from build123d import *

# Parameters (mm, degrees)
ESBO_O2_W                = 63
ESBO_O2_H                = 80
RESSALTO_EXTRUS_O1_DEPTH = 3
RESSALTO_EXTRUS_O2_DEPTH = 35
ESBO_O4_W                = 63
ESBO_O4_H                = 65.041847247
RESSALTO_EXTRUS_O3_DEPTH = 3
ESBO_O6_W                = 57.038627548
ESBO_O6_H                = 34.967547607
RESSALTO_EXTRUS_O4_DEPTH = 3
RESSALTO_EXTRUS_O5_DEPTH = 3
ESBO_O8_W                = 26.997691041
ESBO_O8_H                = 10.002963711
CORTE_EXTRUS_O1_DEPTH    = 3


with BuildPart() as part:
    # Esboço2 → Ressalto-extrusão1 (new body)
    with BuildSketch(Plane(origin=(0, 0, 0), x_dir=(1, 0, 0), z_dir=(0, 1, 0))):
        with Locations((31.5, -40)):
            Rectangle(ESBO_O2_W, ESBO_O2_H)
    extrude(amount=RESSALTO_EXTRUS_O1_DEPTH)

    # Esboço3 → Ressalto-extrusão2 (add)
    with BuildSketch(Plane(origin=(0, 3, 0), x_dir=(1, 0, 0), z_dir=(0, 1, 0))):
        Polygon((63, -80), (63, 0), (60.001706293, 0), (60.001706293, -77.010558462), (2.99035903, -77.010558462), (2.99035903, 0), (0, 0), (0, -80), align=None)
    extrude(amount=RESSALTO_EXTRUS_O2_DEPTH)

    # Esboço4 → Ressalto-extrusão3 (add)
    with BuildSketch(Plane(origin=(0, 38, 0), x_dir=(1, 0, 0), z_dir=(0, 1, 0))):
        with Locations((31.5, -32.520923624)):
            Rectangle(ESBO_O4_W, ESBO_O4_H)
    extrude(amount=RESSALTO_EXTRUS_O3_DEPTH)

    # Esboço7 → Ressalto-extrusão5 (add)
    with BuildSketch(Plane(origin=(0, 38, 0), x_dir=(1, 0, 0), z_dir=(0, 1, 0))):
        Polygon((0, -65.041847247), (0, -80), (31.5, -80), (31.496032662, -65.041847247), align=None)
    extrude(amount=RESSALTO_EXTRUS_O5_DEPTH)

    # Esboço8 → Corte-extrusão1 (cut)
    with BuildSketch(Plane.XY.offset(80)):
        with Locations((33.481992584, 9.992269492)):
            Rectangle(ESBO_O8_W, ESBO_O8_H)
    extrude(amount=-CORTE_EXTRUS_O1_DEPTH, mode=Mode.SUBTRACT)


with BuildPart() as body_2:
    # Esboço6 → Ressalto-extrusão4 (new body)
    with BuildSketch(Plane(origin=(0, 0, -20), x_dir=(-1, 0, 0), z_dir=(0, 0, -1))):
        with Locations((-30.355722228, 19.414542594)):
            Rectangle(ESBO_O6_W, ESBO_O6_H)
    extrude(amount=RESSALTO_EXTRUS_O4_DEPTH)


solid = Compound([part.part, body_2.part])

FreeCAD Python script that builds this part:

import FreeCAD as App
import Part
import Sketcher

V = App.Vector
Q = App.Units.Quantity


def add_polygon(sketch, points):
    """Adds a closed chain of lines whose ends are joined by coincident constraints."""
    first, n = sketch.GeometryCount, len(points)
    for a, b in zip(points, points[1:] + points[:1]):
        sketch.addGeometry(Part.LineSegment(App.Vector(*a, 0), App.Vector(*b, 0)), False)
    for i in range(n):
        sketch.addConstraint(Sketcher.Constraint("Coincident", first + i, 2, first + (i + 1) % n, 1))

doc = App.newDocument("Part")
body = doc.addObject("PartDesign::Body", "Body")

# Sketch on XZ plane
sketch1 = body.newObject("Sketcher::SketchObject", "Sketch")
sketch1.AttachmentSupport = (doc.getObject("XZ_Plane"), [""])
sketch1.MapMode = "FlatFace"
add_polygon(sketch1, [(0, 0), (0, 80), (63, 80), (63, 0)])  # lines 0-3
sketch1.addConstraint(Sketcher.Constraint("Vertical", 0))
sketch1.addConstraint(Sketcher.Constraint("Horizontal", 1))
sketch1.addConstraint(Sketcher.Constraint("Vertical", 2))
sketch1.addConstraint(Sketcher.Constraint("Horizontal", 3))
sketch1.addConstraint(Sketcher.Constraint("Coincident", 3, 2, -1, 1))
sketch1.addConstraint(Sketcher.Constraint("DistanceX", 1, 1, 1, 2, Q("63 mm")))
sketch1.addConstraint(Sketcher.Constraint("DistanceY", 0, 1, 0, 2, Q("80 mm")))
pad1 = body.newObject("PartDesign::Pad", "Pad")
pad1.Profile = sketch1
pad1.Length = 3
pad1.Reversed = True

# Sketch on XZ plane
sketch2 = body.newObject("Sketcher::SketchObject", "Sketch001")
sketch2.AttachmentSupport = (doc.getObject("XZ_Plane"), [""])
sketch2.MapMode = "FlatFace"
sketch2.AttachmentOffset = App.Placement(V(0, 0, -3), App.Rotation())
add_polygon(sketch2, [(63, 80), (63, 0), (60, 0), (60, 77), (3, 77), (3, 0), (0, 0), (0, 80)])  # lines 0-7
sketch2.addConstraint(Sketcher.Constraint("Vertical", 0))
sketch2.addConstraint(Sketcher.Constraint("Horizontal", 1))
sketch2.addConstraint(Sketcher.Constraint("Vertical", 2))
sketch2.addConstraint(Sketcher.Constraint("Horizontal", 3))
sketch2.addConstraint(Sketcher.Constraint("Vertical", 4))
sketch2.addConstraint(Sketcher.Constraint("Horizontal", 5))
sketch2.addConstraint(Sketcher.Constraint("Vertical", 6))
sketch2.addConstraint(Sketcher.Constraint("Horizontal", 7))
sketch2.addConstraint(Sketcher.Constraint("Coincident", 5, 2, -1, 1))
sketch2.addConstraint(Sketcher.Constraint("PointOnObject", 0, 2, -1))
sketch2.addConstraint(Sketcher.Constraint("DistanceX", 7, 1, 7, 2, Q("63 mm")))
sketch2.addConstraint(Sketcher.Constraint("DistanceY", 0, 2, 0, 1, Q("80 mm")))
sketch2.addConstraint(Sketcher.Constraint("DistanceX", 5, 2, 5, 1, Q("2.990359 mm")))
sketch2.addConstraint(Sketcher.Constraint("DistanceY", 2, 1, 2, 2, Q("77.010558 mm")))
sketch2.addConstraint(Sketcher.Constraint("DistanceX", 1, 2, 1, 1, Q("2.998294 mm")))
pad2 = body.newObject("PartDesign::Pad", "Pad001")
pad2.Profile = sketch2
pad2.Length = 35
pad2.Reversed = True

# Sketch on XZ plane
sketch3 = body.newObject("Sketcher::SketchObject", "Sketch002")
sketch3.AttachmentSupport = (doc.getObject("XZ_Plane"), [""])
sketch3.MapMode = "FlatFace"
sketch3.AttachmentOffset = App.Placement(V(0, 0, -38), App.Rotation())
add_polygon(sketch3, [(0, 0), (0, 65), (63, 65), (63, 0)])  # lines 0-3
sketch3.addConstraint(Sketcher.Constraint("Vertical", 0))
sketch3.addConstraint(Sketcher.Constraint("Horizontal", 1))
sketch3.addConstraint(Sketcher.Constraint("Vertical", 2))
sketch3.addConstraint(Sketcher.Constraint("Horizontal", 3))
sketch3.addConstraint(Sketcher.Constraint("Coincident", 3, 2, -1, 1))
sketch3.addConstraint(Sketcher.Constraint("DistanceX", 1, 1, 1, 2, Q("63 mm")))
sketch3.addConstraint(Sketcher.Constraint("DistanceY", 0, 1, 0, 2, Q("65.041847 mm")))
pad3 = body.newObject("PartDesign::Pad", "Pad002")
pad3.Profile = sketch3
pad3.Length = 3
pad3.Reversed = True

# Sketch on XZ plane
sketch4 = body.newObject("Sketcher::SketchObject", "Sketch003")
sketch4.AttachmentSupport = (doc.getObject("XZ_Plane"), [""])
sketch4.MapMode = "FlatFace"
sketch4.AttachmentOffset = App.Placement(V(0, 0, -38), App.Rotation())
add_polygon(sketch4, [(0, 65), (0, 80), (32, 80), (31, 65)])  # lines 0-3
sketch4.addConstraint(Sketcher.Constraint("Vertical", 0))
sketch4.addConstraint(Sketcher.Constraint("Horizontal", 1))
sketch4.addConstraint(Sketcher.Constraint("Horizontal", 3))
sketch4.addConstraint(Sketcher.Constraint("PointOnObject", 0, 2, -2))
sketch4.addConstraint(Sketcher.Constraint("DistanceX", 1, 1, 1, 2, Q("31.5 mm")))
sketch4.addConstraint(Sketcher.Constraint("DistanceY", -1, 1, 0, 2, Q("80 mm")))
sketch4.addConstraint(Sketcher.Constraint("DistanceX", 3, 2, 3, 1, Q("31.496033 mm")))
sketch4.addConstraint(Sketcher.Constraint("DistanceY", 0, 1, 0, 2, Q("14.958153 mm")))
pad4 = body.newObject("PartDesign::Pad", "Pad003")
pad4.Profile = sketch4
pad4.Length = 3
pad4.Reversed = True

# Sketch on XY plane
sketch5 = body.newObject("Sketcher::SketchObject", "Sketch004")
sketch5.AttachmentSupport = (doc.getObject("XY_Plane"), [""])
sketch5.MapMode = "FlatFace"
sketch5.AttachmentOffset = App.Placement(V(0, 0, 80), App.Rotation())
add_polygon(sketch5, [(20, 15), (20, 5), (47, 5), (47, 15)])  # lines 0-3
sketch5.addConstraint(Sketcher.Constraint("Vertical", 0))
sketch5.addConstraint(Sketcher.Constraint("Horizontal", 1))
sketch5.addConstraint(Sketcher.Constraint("Vertical", 2))
sketch5.addConstraint(Sketcher.Constraint("Horizontal", 3))
sketch5.addConstraint(Sketcher.Constraint("DistanceX", 1, 1, 1, 2, Q("26.997691 mm")))
sketch5.addConstraint(Sketcher.Constraint("DistanceY", 0, 2, 0, 1, Q("10.002964 mm")))
sketch5.addConstraint(Sketcher.Constraint("DistanceX", -1, 1, 1, 2, Q("46.980838 mm")))
sketch5.addConstraint(Sketcher.Constraint("DistanceY", -1, 1, 2, 2, Q("14.993751 mm")))
pocket1 = body.newObject("PartDesign::Pocket", "Pocket")
pocket1.Profile = sketch5
pocket1.Length = 3
body2 = doc.addObject("PartDesign::Body", "Body001")

# Sketch on XY plane
sketch6 = body2.newObject("Sketcher::SketchObject", "Sketch005")
sketch6.AttachmentSupport = (doc.getObject("XY_Plane001"), [""])
sketch6.MapMode = "FlatFace"
sketch6.AttachmentOffset = App.Placement(V(0, 0, -20), App.Rotation())
add_polygon(sketch6, [(59, 37), (59, 2), (2, 2), (2, 37)])  # lines 0-3
sketch6.addConstraint(Sketcher.Constraint("Vertical", 0))
sketch6.addConstraint(Sketcher.Constraint("Horizontal", 1))
sketch6.addConstraint(Sketcher.Constraint("Vertical", 2))
sketch6.addConstraint(Sketcher.Constraint("Horizontal", 3))
sketch6.addConstraint(Sketcher.Constraint("DistanceX", 1, 2, 1, 1, Q("57.038628 mm")))
sketch6.addConstraint(Sketcher.Constraint("DistanceY", 0, 2, 0, 1, Q("34.967548 mm")))
sketch6.addConstraint(Sketcher.Constraint("DistanceY", -1, 1, 0, 2, Q("1.930769 mm")))
sketch6.addConstraint(Sketcher.Constraint("DistanceX", -1, 1, 1, 2, Q("1.836408 mm")))
pad5 = body2.newObject("PartDesign::Pad", "Pad004")
pad5.Profile = sketch6
pad5.Length = 3
pad5.Reversed = True

doc.recompute()
